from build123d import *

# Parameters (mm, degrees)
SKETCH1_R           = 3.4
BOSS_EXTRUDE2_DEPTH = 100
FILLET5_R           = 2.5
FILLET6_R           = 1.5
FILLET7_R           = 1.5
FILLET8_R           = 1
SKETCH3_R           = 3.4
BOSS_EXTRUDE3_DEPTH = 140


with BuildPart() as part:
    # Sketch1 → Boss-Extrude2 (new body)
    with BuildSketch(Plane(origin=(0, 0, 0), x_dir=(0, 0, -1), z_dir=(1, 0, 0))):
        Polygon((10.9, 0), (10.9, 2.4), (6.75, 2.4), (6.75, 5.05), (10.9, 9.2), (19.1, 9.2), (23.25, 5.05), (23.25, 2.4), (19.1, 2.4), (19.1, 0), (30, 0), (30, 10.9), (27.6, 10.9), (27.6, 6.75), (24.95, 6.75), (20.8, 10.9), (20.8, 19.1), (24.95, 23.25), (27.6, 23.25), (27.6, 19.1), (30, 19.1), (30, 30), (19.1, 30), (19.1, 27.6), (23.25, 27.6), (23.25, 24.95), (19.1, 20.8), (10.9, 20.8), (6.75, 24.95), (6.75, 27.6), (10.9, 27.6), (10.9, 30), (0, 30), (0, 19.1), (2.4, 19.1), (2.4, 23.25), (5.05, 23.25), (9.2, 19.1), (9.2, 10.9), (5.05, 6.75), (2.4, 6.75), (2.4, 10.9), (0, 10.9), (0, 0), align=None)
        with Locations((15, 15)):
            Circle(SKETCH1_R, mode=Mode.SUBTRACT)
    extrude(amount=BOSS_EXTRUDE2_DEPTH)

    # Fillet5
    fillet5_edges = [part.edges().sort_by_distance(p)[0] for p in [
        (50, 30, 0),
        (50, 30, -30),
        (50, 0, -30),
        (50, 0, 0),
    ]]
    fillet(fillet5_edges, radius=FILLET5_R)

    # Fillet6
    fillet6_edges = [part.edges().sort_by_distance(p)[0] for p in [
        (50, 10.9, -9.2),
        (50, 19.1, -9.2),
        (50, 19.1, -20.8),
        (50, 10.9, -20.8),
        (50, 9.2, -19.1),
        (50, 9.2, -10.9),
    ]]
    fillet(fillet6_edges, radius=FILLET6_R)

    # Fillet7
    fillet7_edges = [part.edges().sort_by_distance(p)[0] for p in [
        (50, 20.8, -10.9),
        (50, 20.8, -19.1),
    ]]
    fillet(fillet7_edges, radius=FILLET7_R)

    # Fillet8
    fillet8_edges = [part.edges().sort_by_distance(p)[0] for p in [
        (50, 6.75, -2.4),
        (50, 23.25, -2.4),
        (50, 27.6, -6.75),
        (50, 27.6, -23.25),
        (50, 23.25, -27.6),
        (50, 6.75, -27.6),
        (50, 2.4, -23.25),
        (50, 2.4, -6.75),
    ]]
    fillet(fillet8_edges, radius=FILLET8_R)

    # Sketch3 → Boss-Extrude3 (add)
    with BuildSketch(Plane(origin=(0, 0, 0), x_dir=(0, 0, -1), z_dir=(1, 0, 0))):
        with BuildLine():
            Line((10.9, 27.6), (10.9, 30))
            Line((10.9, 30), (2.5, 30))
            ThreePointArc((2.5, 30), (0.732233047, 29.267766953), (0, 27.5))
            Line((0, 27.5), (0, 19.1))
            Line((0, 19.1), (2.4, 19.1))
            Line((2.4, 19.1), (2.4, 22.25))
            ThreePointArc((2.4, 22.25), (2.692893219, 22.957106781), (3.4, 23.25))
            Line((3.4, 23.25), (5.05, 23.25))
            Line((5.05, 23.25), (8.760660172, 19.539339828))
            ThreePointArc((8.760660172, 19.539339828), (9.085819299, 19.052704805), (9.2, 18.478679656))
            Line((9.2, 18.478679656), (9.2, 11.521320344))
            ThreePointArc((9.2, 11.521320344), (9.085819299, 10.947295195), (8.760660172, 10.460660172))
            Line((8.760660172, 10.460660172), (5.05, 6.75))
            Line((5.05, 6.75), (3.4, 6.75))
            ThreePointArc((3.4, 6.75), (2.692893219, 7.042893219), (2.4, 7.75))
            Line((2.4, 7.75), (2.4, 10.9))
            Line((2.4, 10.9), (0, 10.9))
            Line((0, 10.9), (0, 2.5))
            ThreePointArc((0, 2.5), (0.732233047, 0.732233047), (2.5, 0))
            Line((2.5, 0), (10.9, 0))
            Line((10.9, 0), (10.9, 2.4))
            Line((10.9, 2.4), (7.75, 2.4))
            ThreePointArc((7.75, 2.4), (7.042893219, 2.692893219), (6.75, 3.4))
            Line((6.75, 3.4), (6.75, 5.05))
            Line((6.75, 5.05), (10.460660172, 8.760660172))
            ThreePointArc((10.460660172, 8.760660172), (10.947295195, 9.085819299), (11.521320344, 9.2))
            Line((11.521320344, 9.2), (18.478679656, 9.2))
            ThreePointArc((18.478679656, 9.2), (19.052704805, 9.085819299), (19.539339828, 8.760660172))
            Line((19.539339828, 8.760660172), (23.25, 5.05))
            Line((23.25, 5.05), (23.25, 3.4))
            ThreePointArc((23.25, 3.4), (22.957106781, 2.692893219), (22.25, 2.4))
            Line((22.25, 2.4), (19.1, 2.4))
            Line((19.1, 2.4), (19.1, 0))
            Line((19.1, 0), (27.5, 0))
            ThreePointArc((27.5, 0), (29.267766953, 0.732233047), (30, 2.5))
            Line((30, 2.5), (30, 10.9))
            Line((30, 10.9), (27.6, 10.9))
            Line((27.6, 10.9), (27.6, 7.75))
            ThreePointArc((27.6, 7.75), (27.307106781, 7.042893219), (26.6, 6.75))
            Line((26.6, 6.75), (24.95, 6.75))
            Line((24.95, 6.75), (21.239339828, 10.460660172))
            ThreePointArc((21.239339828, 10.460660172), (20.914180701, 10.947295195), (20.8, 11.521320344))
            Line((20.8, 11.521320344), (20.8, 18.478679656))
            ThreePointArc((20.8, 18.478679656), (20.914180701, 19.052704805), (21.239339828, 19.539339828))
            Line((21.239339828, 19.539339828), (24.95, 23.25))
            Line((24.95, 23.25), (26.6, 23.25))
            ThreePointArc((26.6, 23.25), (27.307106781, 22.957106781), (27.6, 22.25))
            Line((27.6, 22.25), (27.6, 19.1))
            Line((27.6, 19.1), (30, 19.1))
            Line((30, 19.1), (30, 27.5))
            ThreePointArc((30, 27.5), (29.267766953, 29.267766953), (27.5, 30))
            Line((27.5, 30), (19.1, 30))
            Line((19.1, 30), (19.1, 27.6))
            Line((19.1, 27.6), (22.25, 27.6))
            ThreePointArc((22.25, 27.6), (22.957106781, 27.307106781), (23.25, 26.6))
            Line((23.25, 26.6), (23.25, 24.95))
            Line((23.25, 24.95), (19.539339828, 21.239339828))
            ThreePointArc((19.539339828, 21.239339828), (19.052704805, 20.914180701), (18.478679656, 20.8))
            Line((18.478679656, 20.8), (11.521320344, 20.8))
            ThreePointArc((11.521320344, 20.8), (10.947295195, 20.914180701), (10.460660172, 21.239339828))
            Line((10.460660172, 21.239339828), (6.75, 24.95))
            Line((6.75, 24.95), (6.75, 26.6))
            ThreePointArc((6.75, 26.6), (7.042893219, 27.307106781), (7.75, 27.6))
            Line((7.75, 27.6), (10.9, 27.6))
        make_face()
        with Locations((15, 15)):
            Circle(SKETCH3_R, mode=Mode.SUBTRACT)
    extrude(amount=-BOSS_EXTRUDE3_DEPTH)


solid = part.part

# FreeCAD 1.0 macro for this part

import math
import FreeCAD as App
import Part
import Sketcher
from FreeCAD import Vector
Q = App.Units.Quantity


def edges_at(feature, points):
    """Names of the edges that pass closest to the given points."""
    edges = feature.Shape.Edges
    near = lambda p: min(range(len(edges)), key=lambda i: edges[i].distToShape(Part.Vertex(*p))[0])
    return sorted({f"Edge{near(p) + 1}" for p in points})


def add_polygon(sketch, points):
    """Adds a closed chain of lines whose ends are joined by coincident constraints."""
    first, n = sketch.GeometryCount, len(points)
    for a, b in zip(points, points[1:] + points[:1]):
        sketch.addGeometry(Part.LineSegment(App.Vector(*a, 0), App.Vector(*b, 0)), False)
    for i in range(n):
        sketch.addConstraint(Sketcher.Constraint("Coincident", first + i, 2, first + (i + 1) % n, 1))

doc = App.newDocument("Part")
body = doc.addObject("PartDesign::Body", "Body")

sketch1 = doc.addObject("Sketcher::SketchObject", "Sketch")
body.addObject(sketch1)
sketch1.AttachmentSupport = (doc.YZ_Plane, [""])
sketch1.MapMode = "FlatFace"
add_polygon(sketch1, [(0, -10.9), (2.4, -10.9), (2.4, -6.75), (5.05, -6.75), (9.2, -10.9), (9.2, -19.1), (5.05, -23.25), (2.4, -23.25), (2.4, -19.1), (0, -19.1), (0, -30), (10.9, -30), (10.9, -27.6), (6.75, -27.6), (6.75, -24.95), (10.9, -20.8), (19.1, -20.8), (23.25, -24.95), (23.25, -27.6), (19.1, -27.6), (19.1, -30), (30, -30), (30, -19.1), (27.6, -19.1), (27.6, -23.25), (24.95, -23.25), (20.8, -19.1), (20.8, -10.9), (24.95, -6.75), (27.6, -6.75), (27.6, -10.9), (30, -10.9), (30, 0), (19.1, 0), (19.1, -2.4), (23.25, -2.4), (23.25, -5.05), (19.1, -9.2), (10.9, -9.2), (6.75, -5.05), (6.75, -2.4), (10.9, -2.4), (10.9, 0), (0, 0)])
sketch1.addGeometry(Part.Circle(Vector(15, -15, 0), Vector(0, 0, 1), 3.4), False)
sketch1.addConstraint([
    Sketcher.Constraint("Horizontal", 0),
    Sketcher.Constraint("Vertical", 1),
    Sketcher.Constraint("Horizontal", 2),
    Sketcher.Constraint("Vertical", 4),
    Sketcher.Constraint("Horizontal", 6),
    Sketcher.Constraint("Vertical", 7),
    Sketcher.Constraint("Horizontal", 8),
    Sketcher.Constraint("Vertical", 9),
    Sketcher.Constraint("Horizontal", 10),
    Sketcher.Constraint("Vertical", 11),
    Sketcher.Constraint("Horizontal", 12),
    Sketcher.Constraint("Vertical", 13),
    Sketcher.Constraint("Horizontal", 15),
    Sketcher.Constraint("Vertical", 17),
    Sketcher.Constraint("Horizontal", 18),
    Sketcher.Constraint("Vertical", 19),
    Sketcher.Constraint("Horizontal", 20),
    Sketcher.Constraint("Vertical", 21),
    Sketcher.Constraint("Horizontal", 22),
    Sketcher.Constraint("Vertical", 23),
    Sketcher.Constraint("Horizontal", 24),
    Sketcher.Constraint("Vertical", 26),
    Sketcher.Constraint("Horizontal", 28),
    Sketcher.Constraint("Vertical", 29),
    Sketcher.Constraint("Horizontal", 30),
    Sketcher.Constraint("Vertical", 31),
    Sketcher.Constraint("Horizontal", 32),
    Sketcher.Constraint("Vertical", 33),
    Sketcher.Constraint("Horizontal", 34),
    Sketcher.Constraint("Vertical", 35),
    Sketcher.Constraint("Horizontal", 37),
    Sketcher.Constraint("Vertical", 39),
    Sketcher.Constraint("Horizontal", 40),
    Sketcher.Constraint("Vertical", 41),
    Sketcher.Constraint("Horizontal", 42),
    Sketcher.Constraint("Vertical", 43),
    Sketcher.Constraint("Coincident", 42, 2, -1, 1),
    Sketcher.Constraint("PointOnObject", 8, 2, -2),
    Sketcher.Constraint("PointOnObject", 31, 2, -1),
    Sketcher.Constraint("Perpendicular", 3, 5),
    Sketcher.Constraint("Parallel", 5, 14),
    Sketcher.Constraint("Perpendicular", 14, 16),
    Sketcher.Constraint("Parallel", 16, 25),
    Sketcher.Constraint("Perpendicular", 25, 27),
    Sketcher.Constraint("Parallel", 27, 36),
    Sketcher.Constraint("Perpendicular", 36, 38),
    Sketcher.Constraint("Horizontal", 0, 2, 3, 2),
    Sketcher.Constraint("Horizontal", 4, 2, 7, 2),
    Sketcher.Constraint("Horizontal", 13, 2, 16, 2),
    Sketcher.Constraint("Horizontal", 12, 2, 17, 2),
    Sketcher.Constraint("Horizontal", 10, 2, 19, 2),
    Sketcher.Constraint("Horizontal", 8, 2, 21, 2),
    Sketcher.Constraint("Horizontal", 6, 2, 23, 2),
    Sketcher.Constraint("Horizontal", 22, 2, 25, 2),
    Sketcher.Constraint("Horizontal", 3, 2, 26, 2),
    Sketcher.Constraint("Horizontal", 2, 2, 27, 2),
    Sketcher.Constraint("Horizontal", 26, 2, 29, 2),
    Sketcher.Constraint("Horizontal", 35, 2, 38, 2),
    Sketcher.Constraint("Horizontal", 34, 2, 39, 2),
    Sketcher.Constraint("Vertical", 2, 2, 5, 2),
    Sketcher.Constraint("Vertical", 1, 2, 6, 2),
    Sketcher.Constraint("Vertical", 11, 2, 14, 2),
    Sketcher.Constraint("Vertical", 15, 2, 18, 2),
    Sketcher.Constraint("Vertical", 24, 2, 27, 2),
    Sketcher.Constraint("Vertical", 23, 2, 28, 2),
    Sketcher.Constraint("Vertical", 21, 2, 30, 2),
    Sketcher.Constraint("Vertical", 19, 2, 32, 2),
    Sketcher.Constraint("Vertical", 17, 2, 34, 2),
    Sketcher.Constraint("Vertical", 33, 2, 36, 2),
    Sketcher.Constraint("Vertical", 14, 2, 37, 2),
    Sketcher.Constraint("Vertical", 37, 2, 40, 2),
    Sketcher.Constraint("Equal", 10, 20),
    Sketcher.Constraint("Equal", 8, 22),
    Sketcher.Constraint("Equal", 6, 24),
    Sketcher.Constraint("Equal", 40, 1),
    Sketcher.Constraint("Equal", 37, 4),
    Sketcher.Constraint("Equal", 42, 9),
    Sketcher.Constraint("Equal", 30, 11),
    Sketcher.Constraint("Equal", 28, 13),
    Sketcher.Constraint("Equal", 21, 31),
    Sketcher.Constraint("Equal", 19, 33),
    Sketcher.Constraint("Equal", 17, 35),
    Sketcher.Constraint("Diameter", 44, Q("6.8 mm")),
    Sketcher.Constraint("DistanceX", 0, 1, 0, 2, Q("2.4 mm")),
    Sketcher.Constraint("DistanceX", 10, 1, 10, 2, Q("10.9 mm")),
    Sketcher.Constraint("DistanceX", 15, 1, 15, 2, Q("8.2 mm")),
    Sketcher.Constraint("DistanceX", -1, 1, 44, 3, Q("15 mm")),
    Sketcher.Constraint("DistanceY", 44, 3, -1, 1, Q("15 mm")),
    Sketcher.Constraint("DistanceX", 2, 1, 2, 2, Q("2.65 mm")),
    Sketcher.Constraint("DistanceX", 12, 2, 12, 1, Q("4.15 mm")),
])
pad1 = doc.addObject("PartDesign::Pad", "Pad")
body.addObject(pad1)
pad1.Profile = sketch1
pad1.Length = 100
doc.recompute()

fillet = doc.addObject("PartDesign::Fillet", "Fillet")
body.addObject(fillet)
fillet.Base = (pad1, edges_at(pad1, [
    (50, 30, 0),
    (50, 30, -30),
    (50, 0, -30),
    (50, 0, 0),
]))
fillet.Radius = 2.5
doc.recompute()

fillet2 = doc.addObject("PartDesign::Fillet", "Fillet001")
body.addObject(fillet2)
fillet2.Base = (fillet, edges_at(fillet, [
    (50, 10.9, -9.2),
    (50, 19.1, -9.2),
    (50, 19.1, -20.8),
    (50, 10.9, -20.8),
    (50, 9.2, -19.1),
    (50, 9.2, -10.9),
]))
fillet2.Radius = 1.5
doc.recompute()

fillet3 = doc.addObject("PartDesign::Fillet", "Fillet002")
body.addObject(fillet3)
fillet3.Base = (fillet2, edges_at(fillet2, [(50, 20.8, -10.9), (50, 20.8, -19.1)]))
fillet3.Radius = 1.5
doc.recompute()

fillet4 = doc.addObject("PartDesign::Fillet", "Fillet003")
body.addObject(fillet4)
fillet4.Base = (fillet3, edges_at(fillet3, [
    (50, 6.75, -2.4),
    (50, 23.25, -2.4),
    (50, 27.6, -6.75),
    (50, 27.6, -23.25),
    (50, 23.25, -27.6),
    (50, 6.75, -27.6),
    (50, 2.4, -23.25),
    (50, 2.4, -6.75),
]))
fillet4.Radius = 1

sketch2 = doc.addObject("Sketcher::SketchObject", "Sketch001")
body.addObject(sketch2)
sketch2.AttachmentSupport = (doc.YZ_Plane, [""])
sketch2.MapMode = "FlatFace"
sketch2.addGeometry([
    Part.LineSegment(Vector(27.6, -10.9, 0), Vector(30, -10.9, 0)),
    Part.LineSegment(Vector(30, -10.9, 0), Vector(30, -2.5, 0)),
    Part.ArcOfCircle(Part.Circle(Vector(27.5, -2.5, 0), Vector(0, 0, 1), 2.5), math.radians(0), math.radians(90)),
    Part.LineSegment(Vector(27.5, 0, 0), Vector(19.1, 0, 0)),
    Part.LineSegment(Vector(19.1, 0, 0), Vector(19.1, -2.4, 0)),
    Part.LineSegment(Vector(19.1, -2.4, 0), Vector(22.25, -2.4, 0)),
    Part.ArcOfCircle(Part.Circle(Vector(22.25, -3.4, 0), Vector(0, 0, 1), 1), math.radians(0), math.radians(90)),
    Part.LineSegment(Vector(23.25, -3.4, 0), Vector(23.25, -5.05, 0)),
    Part.LineSegment(Vector(23.25, -5.05, 0), Vector(19.53934, -8.76066, 0)),
    Part.ArcOfCircle(Part.Circle(Vector(18.47868, -7.7, 0), Vector(0, 0, 1), 1.5), math.radians(-90), math.radians(-45)),
    Part.LineSegment(Vector(18.47868, -9.2, 0), Vector(11.52132, -9.2, 0)),
    Part.ArcOfCircle(Part.Circle(Vector(11.52132, -7.7, 0), Vector(0, 0, 1), 1.5), math.radians(-135), math.radians(-90)),
    Part.LineSegment(Vector(10.46066, -8.76066, 0), Vector(6.75, -5.05, 0)),
    Part.LineSegment(Vector(6.75, -5.05, 0), Vector(6.75, -3.4, 0)),
    Part.ArcOfCircle(Part.Circle(Vector(7.75, -3.4, 0), Vector(0, 0, 1), 1), math.radians(90), math.radians(180)),
    Part.LineSegment(Vector(7.75, -2.4, 0), Vector(10.9, -2.4, 0)),
    Part.LineSegment(Vector(10.9, -2.4, 0), Vector(10.9, 0, 0)),
    Part.LineSegment(Vector(10.9, 0, 0), Vector(2.5, 0, 0)),
    Part.ArcOfCircle(Part.Circle(Vector(2.5, -2.5, 0), Vector(0, 0, 1), 2.5), math.radians(90), math.radians(180)),
    Part.LineSegment(Vector(0, -2.5, 0), Vector(0, -10.9, 0)),
    Part.LineSegment(Vector(0, -10.9, 0), Vector(2.4, -10.9, 0)),
    Part.LineSegment(Vector(2.4, -10.9, 0), Vector(2.4, -7.75, 0)),
    Part.ArcOfCircle(Part.Circle(Vector(3.4, -7.75, 0), Vector(0, 0, 1), 1), math.radians(90), math.radians(180)),
    Part.LineSegment(Vector(3.4, -6.75, 0), Vector(5.05, -6.75, 0)),
    Part.LineSegment(Vector(5.05, -6.75, 0), Vector(8.76066, -10.46066, 0)),
    Part.ArcOfCircle(Part.Circle(Vector(7.7, -11.52132, 0), Vector(0, 0, 1), 1.5), math.radians(0), math.radians(45)),
    Part.LineSegment(Vector(9.2, -11.52132, 0), Vector(9.2, -18.47868, 0)),
    Part.ArcOfCircle(Part.Circle(Vector(7.7, -18.47868, 0), Vector(0, 0, 1), 1.5), math.radians(-45), math.radians(0)),
    Part.LineSegment(Vector(8.76066, -19.53934, 0), Vector(5.05, -23.25, 0)),
    Part.LineSegment(Vector(5.05, -23.25, 0), Vector(3.4, -23.25, 0)),
    Part.ArcOfCircle(Part.Circle(Vector(3.4, -22.25, 0), Vector(0, 0, 1), 1), math.radians(-180), math.radians(-90)),
    Part.LineSegment(Vector(2.4, -22.25, 0), Vector(2.4, -19.1, 0)),
    Part.LineSegment(Vector(2.4, -19.1, 0), Vector(0, -19.1, 0)),
    Part.LineSegment(Vector(0, -19.1, 0), Vector(0, -27.5, 0)),
    Part.ArcOfCircle(Part.Circle(Vector(2.5, -27.5, 0), Vector(0, 0, 1), 2.5), math.radians(180), math.radians(270)),
    Part.LineSegment(Vector(2.5, -30, 0), Vector(10.9, -30, 0)),
    Part.LineSegment(Vector(10.9, -30, 0), Vector(10.9, -27.6, 0)),
    Part.LineSegment(Vector(10.9, -27.6, 0), Vector(7.75, -27.6, 0)),
    Part.ArcOfCircle(Part.Circle(Vector(7.75, -26.6, 0), Vector(0, 0, 1), 1), math.radians(-180), math.radians(-90)),
    Part.LineSegment(Vector(6.75, -26.6, 0), Vector(6.75, -24.95, 0)),
    Part.LineSegment(Vector(6.75, -24.95, 0), Vector(10.46066, -21.23934, 0)),
    Part.ArcOfCircle(Part.Circle(Vector(11.52132, -22.3, 0), Vector(0, 0, 1), 1.5), math.radians(90), math.radians(135)),
    Part.LineSegment(Vector(11.52132, -20.8, 0), Vector(18.47868, -20.8, 0)),
    Part.ArcOfCircle(Part.Circle(Vector(18.47868, -22.3, 0), Vector(0, 0, 1), 1.5), math.radians(45), math.radians(90)),
    Part.LineSegment(Vector(19.53934, -21.23934, 0), Vector(23.25, -24.95, 0)),
    Part.LineSegment(Vector(23.25, -24.95, 0), Vector(23.25, -26.6, 0)),
    Part.ArcOfCircle(Part.Circle(Vector(22.25, -26.6, 0), Vector(0, 0, 1), 1), math.radians(-90), math.radians(0)),
    Part.LineSegment(Vector(22.25, -27.6, 0), Vector(19.1, -27.6, 0)),
    Part.LineSegment(Vector(19.1, -27.6, 0), Vector(19.1, -30, 0)),
    Part.LineSegment(Vector(19.1, -30, 0), Vector(27.5, -30, 0)),
    Part.ArcOfCircle(Part.Circle(Vector(27.5, -27.5, 0), Vector(0, 0, 1), 2.5), math.radians(-90), math.radians(0)),
    Part.LineSegment(Vector(30, -27.5, 0), Vector(30, -19.1, 0)),
    Part.LineSegment(Vector(30, -19.1, 0), Vector(27.6, -19.1, 0)),
    Part.LineSegment(Vector(27.6, -19.1, 0), Vector(27.6, -22.25, 0)),
    Part.ArcOfCircle(Part.Circle(Vector(26.6, -22.25, 0), Vector(0, 0, 1), 1), math.radians(-90), math.radians(0)),
    Part.LineSegment(Vector(26.6, -23.25, 0), Vector(24.95, -23.25, 0)),
    Part.LineSegment(Vector(24.95, -23.25, 0), Vector(21.23934, -19.53934, 0)),
    Part.ArcOfCircle(Part.Circle(Vector(22.3, -18.47868, 0), Vector(0, 0, 1), 1.5), math.radians(180), math.radians(225)),
    Part.LineSegment(Vector(20.8, -18.47868, 0), Vector(20.8, -11.52132, 0)),
    Part.ArcOfCircle(Part.Circle(Vector(22.3, -11.52132, 0), Vector(0, 0, 1), 1.5), math.radians(135), math.radians(180)),
    Part.LineSegment(Vector(21.23934, -10.46066, 0), Vector(24.95, -6.75, 0)),
    Part.LineSegment(Vector(24.95, -6.75, 0), Vector(26.6, -6.75, 0)),
    Part.ArcOfCircle(Part.Circle(Vector(26.6, -7.75, 0), Vector(0, 0, 1), 1), math.radians(0), math.radians(90)),
    Part.LineSegment(Vector(27.6, -7.75, 0), Vector(27.6, -10.9, 0)),
    Part.Circle(Vector(15, -15, 0), Vector(0, 0, 1), 3.4),
], False)
sketch2.addConstraint([
    Sketcher.Constraint("Coincident", 0, 2, 1, 1),
    Sketcher.Constraint("Tangent", 1, 2, 2, 1),
    Sketcher.Constraint("Tangent", 2, 2, 3, 1),
    Sketcher.Constraint("Coincident", 3, 2, 4, 1),
    Sketcher.Constraint("Coincident", 4, 2, 5, 1),
    Sketcher.Constraint("Tangent", 5, 2, 6, 2),
    Sketcher.Constraint("Tangent", 6, 1, 7, 1),
    Sketcher.Constraint("Coincident", 7, 2, 8, 1),
    Sketcher.Constraint("Tangent", 8, 2, 9, 2),
    Sketcher.Constraint("Tangent", 9, 1, 10, 1),
    Sketcher.Constraint("Tangent", 10, 2, 11, 2),
    Sketcher.Constraint("Tangent", 11, 1, 12, 1),
    Sketcher.Constraint("Coincident", 12, 2, 13, 1),
    Sketcher.Constraint("Tangent", 13, 2, 14, 2),
    Sketcher.Constraint("Tangent", 14, 1, 15, 1),
    Sketcher.Constraint("Coincident", 15, 2, 16, 1),
    Sketcher.Constraint("Coincident", 16, 2, 17, 1),
    Sketcher.Constraint("Tangent", 17, 2, 18, 1),
    Sketcher.Constraint("Tangent", 18, 2, 19, 1),
    Sketcher.Constraint("Coincident", 19, 2, 20, 1),
    Sketcher.Constraint("Coincident", 20, 2, 21, 1),
    Sketcher.Constraint("Tangent", 21, 2, 22, 2),
    Sketcher.Constraint("Tangent", 22, 1, 23, 1),
    Sketcher.Constraint("Coincident", 23, 2, 24, 1),
    Sketcher.Constraint("Tangent", 24, 2, 25, 2),
    Sketcher.Constraint("Tangent", 25, 1, 26, 1),
    Sketcher.Constraint("Tangent", 26, 2, 27, 2),
    Sketcher.Constraint("Tangent", 27, 1, 28, 1),
    Sketcher.Constraint("Coincident", 28, 2, 29, 1),
    Sketcher.Constraint("Tangent", 29, 2, 30, 2),
    Sketcher.Constraint("Tangent", 30, 1, 31, 1),
    Sketcher.Constraint("Coincident", 31, 2, 32, 1),
    Sketcher.Constraint("Coincident", 32, 2, 33, 1),
    Sketcher.Constraint("Tangent", 33, 2, 34, 1),
    Sketcher.Constraint("Tangent", 34, 2, 35, 1),
    Sketcher.Constraint("Coincident", 35, 2, 36, 1),
    Sketcher.Constraint("Coincident", 36, 2, 37, 1),
    Sketcher.Constraint("Tangent", 37, 2, 38, 2),
    Sketcher.Constraint("Tangent", 38, 1, 39, 1),
    Sketcher.Constraint("Coincident", 39, 2, 40, 1),
    Sketcher.Constraint("Tangent", 40, 2, 41, 2),
    Sketcher.Constraint("Tangent", 41, 1, 42, 1),
    Sketcher.Constraint("Tangent", 42, 2, 43, 2),
    Sketcher.Constraint("Tangent", 43, 1, 44, 1),
    Sketcher.Constraint("Coincident", 44, 2, 45, 1),
    Sketcher.Constraint("Tangent", 45, 2, 46, 2),
    Sketcher.Constraint("Tangent", 46, 1, 47, 1),
    Sketcher.Constraint("Coincident", 47, 2, 48, 1),
    Sketcher.Constraint("Coincident", 48, 2, 49, 1),
    Sketcher.Constraint("Tangent", 49, 2, 50, 1),
    Sketcher.Constraint("Tangent", 50, 2, 51, 1),
    Sketcher.Constraint("Coincident", 51, 2, 52, 1),
    Sketcher.Constraint("Coincident", 52, 2, 53, 1),
    Sketcher.Constraint("Tangent", 53, 2, 54, 2),
    Sketcher.Constraint("Tangent", 54, 1, 55, 1),
    Sketcher.Constraint("Coincident", 55, 2, 56, 1),
    Sketcher.Constraint("Tangent", 56, 2, 57, 2),
    Sketcher.Constraint("Tangent", 57, 1, 58, 1),
    Sketcher.Constraint("Tangent", 58, 2, 59, 2),
    Sketcher.Constraint("Tangent", 59, 1, 60, 1),
    Sketcher.Constraint("Coincident", 60, 2, 61, 1),
    Sketcher.Constraint("Tangent", 61, 2, 62, 2),
    Sketcher.Constraint("Tangent", 62, 1, 63, 1),
    Sketcher.Constraint("Coincident", 63, 2, 0, 1),
    Sketcher.Constraint("Horizontal", 0),
    Sketcher.Constraint("Vertical", 1),
    Sketcher.Constraint("Horizontal", 3),
    Sketcher.Constraint("Vertical", 4),
    Sketcher.Constraint("Horizontal", 5),
    Sketcher.Constraint("Vertical", 7),
    Sketcher.Constraint("Horizontal", 10),
    Sketcher.Constraint("Vertical", 13),
    Sketcher.Constraint("Horizontal", 15),
    Sketcher.Constraint("Vertical", 16),
    Sketcher.Constraint("Horizontal", 17),
    Sketcher.Constraint("Vertical", 19),
    Sketcher.Constraint("Horizontal", 20),
    Sketcher.Constraint("Vertical", 21),
    Sketcher.Constraint("Horizontal", 23),
    Sketcher.Constraint("Vertical", 26),
    Sketcher.Constraint("Horizontal", 29),
    Sketcher.Constraint("Vertical", 31),
    Sketcher.Constraint("Horizontal", 32),
    Sketcher.Constraint("Vertical", 33),
    Sketcher.Constraint("Horizontal", 35),
    Sketcher.Constraint("Vertical", 36),
    Sketcher.Constraint("Horizontal", 37),
    Sketcher.Constraint("Vertical", 39),
    Sketcher.Constraint("Horizontal", 42),
    Sketcher.Constraint("Vertical", 45),
    Sketcher.Constraint("Horizontal", 47),
    Sketcher.Constraint("Vertical", 48),
    Sketcher.Constraint("Horizontal", 49),
    Sketcher.Constraint("Vertical", 51),
    Sketcher.Constraint("Horizontal", 52),
    Sketcher.Constraint("Vertical", 53),
    Sketcher.Constraint("Horizontal", 55),
    Sketcher.Constraint("Vertical", 58),
    Sketcher.Constraint("Horizontal", 61),
    Sketcher.Constraint("Vertical", 63),
    Sketcher.Constraint("Equal", 9, 11),
    Sketcher.Constraint("Equal", 6, 14),
    Sketcher.Constraint("Equal", 2, 18),
    Sketcher.Constraint("Equal", 14, 22),
    Sketcher.Constraint("Equal", 11, 25),
    Sketcher.Constraint("Equal", 25, 27),
    Sketcher.Constraint("Equal", 22, 30),
    Sketcher.Constraint("Equal", 18, 34),
    Sketcher.Constraint("Equal", 30, 38),
    Sketcher.Constraint("Equal", 27, 41),
    Sketcher.Constraint("Equal", 41, 43),
    Sketcher.Constraint("Equal", 38, 46),
    Sketcher.Constraint("Equal", 34, 50),
    Sketcher.Constraint("Equal", 46, 54),
    Sketcher.Constraint("Equal", 43, 57),
    Sketcher.Constraint("Equal", 57, 59),
    Sketcher.Constraint("Equal", 54, 62),
    Sketcher.Constraint("PointOnObject", 2, 2, -1),
    Sketcher.Constraint("PointOnObject", 16, 2, -1),
    Sketcher.Constraint("PointOnObject", 18, 2, -2),
    Sketcher.Constraint("PointOnObject", 32, 2, -2),
    Sketcher.Constraint("Perpendicular", 8, 12),
    Sketcher.Constraint("Parallel", 12, 24),
    Sketcher.Constraint("Perpendicular", 24, 28),
    Sketcher.Constraint("Parallel", 28, 40),
    Sketcher.Constraint("Perpendicular", 40, 44),
    Sketcher.Constraint("Parallel", 44, 56),
    Sketcher.Constraint("Perpendicular", 56, 60),
    Sketcher.Constraint("Horizontal", 6, 3, 14, 3),
    Sketcher.Constraint("Horizontal", 38, 3, 46, 3),
    Sketcher.Constraint("Horizontal", 34, 3, 50, 3),
    Sketcher.Constraint("Horizontal", 30, 3, 54, 3),
    Sketcher.Constraint("Horizontal", 27, 3, 57, 3),
    Sketcher.Constraint("Horizontal", 25, 3, 59, 3),
    Sketcher.Constraint("Horizontal", 22, 3, 62, 3),
    Sketcher.Constraint("Horizontal", 8, 2, 11, 1),
    Sketcher.Constraint("Horizontal", 7, 2, 12, 2),
    Sketcher.Constraint("Horizontal", 0, 2, 19, 2),
    Sketcher.Constraint("Horizontal", 39, 2, 44, 2),
    Sketcher.Constraint("Horizontal", 32, 2, 51, 2),
    Sketcher.Constraint("Vertical", 22, 3, 30, 3),
    Sketcher.Constraint("Vertical", 14, 3, 38, 3),
    Sketcher.Constraint("Vertical", 11, 3, 41, 3),
    Sketcher.Constraint("Vertical", 9, 3, 43, 3),
    Sketcher.Constraint("Vertical", 2, 3, 50, 3),
    Sketcher.Constraint("Vertical", 54, 3, 62, 3),
    Sketcher.Constraint("Vertical", 23, 2, 28, 2),
    Sketcher.Constraint("Vertical", 16, 2, 35, 2),
    Sketcher.Constraint("Vertical", 4, 2, 47, 2),
    Sketcher.Constraint("Equal", 5, 15),
    Sketcher.Constraint("Equal", 3, 17),
    Sketcher.Constraint("Equal", 0, 20),
    Sketcher.Constraint("Equal", 29, 55),
    Sketcher.Constraint("Equal", 49, 1),
    Sketcher.Constraint("Equal", 52, 4),
    Sketcher.Constraint("Equal", 61, 7),
    Sketcher.Constraint("Equal", 47, 21),
    Sketcher.Constraint("Equal", 42, 26),
    Sketcher.Constraint("Equal", 21, 31),
    Sketcher.Constraint("Equal", 19, 33),
    Sketcher.Constraint("Equal", 16, 36),
    Sketcher.Constraint("Equal", 13, 39),
    Sketcher.Constraint("Equal", 12, 24),
    Sketcher.Constraint("Radius", 6, Q("1 mm")),
    Sketcher.Constraint("Diameter", 64, Q("6.8 mm")),
    Sketcher.Constraint("Radius", 2, Q("2.5 mm")),
    Sketcher.Constraint("Radius", 9, Q("1.5 mm")),
    Sketcher.Constraint("DistanceX", 0, 1, 0, 2, Q("2.4 mm")),
    Sketcher.Constraint("DistanceX", 3, 2, 3, 1, Q("8.4 mm")),
    Sketcher.Constraint("DistanceX", -1, 1, 64, 3, Q("15 mm")),
    Sketcher.Constraint("DistanceY", 64, 3, -1, 1, Q("15 mm")),
    Sketcher.Constraint("DistanceX", -1, 1, 0, 2, Q("30 mm")),
    Sketcher.Constraint("DistanceX", 5, 1, 5, 2, Q("3.15 mm")),
    Sketcher.Constraint("DistanceX", 23, 1, 23, 2, Q("1.65 mm")),
    Sketcher.Constraint("DistanceY", 9, 3, -1, 1, Q("7.7 mm")),
])
pad2 = doc.addObject("PartDesign::Pad", "Pad001")
body.addObject(pad2)
pad2.Profile = sketch2
pad2.Length = 140
pad2.Reversed = True

doc.recompute()
